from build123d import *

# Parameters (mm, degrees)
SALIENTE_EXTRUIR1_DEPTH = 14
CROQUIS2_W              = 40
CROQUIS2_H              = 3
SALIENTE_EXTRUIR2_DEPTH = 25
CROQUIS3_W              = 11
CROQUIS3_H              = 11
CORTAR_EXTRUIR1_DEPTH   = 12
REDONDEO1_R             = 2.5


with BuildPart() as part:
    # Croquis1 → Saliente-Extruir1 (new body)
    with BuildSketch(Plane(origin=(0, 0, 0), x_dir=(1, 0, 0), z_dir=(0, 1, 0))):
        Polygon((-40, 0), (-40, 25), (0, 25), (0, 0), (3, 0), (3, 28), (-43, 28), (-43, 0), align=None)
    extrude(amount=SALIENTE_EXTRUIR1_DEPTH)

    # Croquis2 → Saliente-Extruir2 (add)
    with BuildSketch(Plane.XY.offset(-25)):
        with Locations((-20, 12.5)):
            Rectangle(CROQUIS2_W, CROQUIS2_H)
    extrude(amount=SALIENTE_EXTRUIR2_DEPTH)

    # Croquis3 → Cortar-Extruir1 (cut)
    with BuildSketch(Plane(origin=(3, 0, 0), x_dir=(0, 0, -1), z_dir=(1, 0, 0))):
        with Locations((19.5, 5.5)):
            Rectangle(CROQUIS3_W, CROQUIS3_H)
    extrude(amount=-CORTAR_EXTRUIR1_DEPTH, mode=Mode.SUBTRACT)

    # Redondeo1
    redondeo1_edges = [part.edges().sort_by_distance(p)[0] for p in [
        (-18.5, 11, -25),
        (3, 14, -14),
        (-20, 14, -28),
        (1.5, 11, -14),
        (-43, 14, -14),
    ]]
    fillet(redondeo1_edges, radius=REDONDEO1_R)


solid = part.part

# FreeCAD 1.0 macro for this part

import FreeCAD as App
import Part
import Sketcher
from FreeCAD import Vector


def edges_at(feature, points):
    """Names of the edges that pass closest to the given points."""
    edges = feature.Shape.Edges
    near = lambda p: min(range(len(edges)), key=lambda i: edges[i].distToShape(Part.Vertex(*p))[0])
    return sorted({f"Edge{near(p) + 1}" for p in points})


def add_polygon(sketch, points):
    """Adds a closed chain of lines whose ends are joined by coincident constraints."""
    first, n = sketch.GeometryCount, len(points)
    for a, b in zip(points, points[1:] + points[:1]):
        sketch.addGeometry(Part.LineSegment(App.Vector(*a, 0), App.Vector(*b, 0)), False)
    for i in range(n):
        sketch.addConstraint(Sketcher.Constraint("Coincident", first + i, 2, first + (i + 1) % n, 1))

doc = App.newDocument("Part")
body = doc.addObject("PartDesign::Body", "Body")

# Sketch on XZ plane
sketch1 = doc.addObject("Sketcher::SketchObject", "Sketch")
body.addObject(sketch1)
sketch1.AttachmentSupport = (doc.XZ_Plane, [""])
sketch1.MapMode = "FlatFace"
add_polygon(sketch1, [(-40, 0), (-40, -25), (0, -25), (0, 0), (3, 0), (3, -28), (-43, -28), (-43, 0)])  # lines 0-7
sketch1.addConstraint([
    Sketcher.Constraint("Vertical", 0),
    Sketcher.Constraint("Horizontal", 1),
    Sketcher.Constraint("Vertical", 2),
    Sketcher.Constraint("Horizontal", 3),
    Sketcher.Constraint("Vertical", 4),
    Sketcher.Constraint("Horizontal", 5),
    Sketcher.Constraint("Vertical", 6),
    Sketcher.Constraint("Horizontal", 7),
    Sketcher.Constraint("Coincident", 2, 2, -1, 1),
    Sketcher.Constraint("PointOnObject", 6, 2, -1),
    Sketcher.Constraint("Equal", 3, 7),
    Sketcher.Constraint("DistanceX", 1, 1, 1, 2, 40.0),
    Sketcher.Constraint("DistanceX", 3, 1, 3, 2, 3.0),
    Sketcher.Constraint("DistanceY", 0, 2, 0, 1, 25.0),
    Sketcher.Constraint("DistanceY", 4, 2, 4, 1, 28.0),
])
pad1 = doc.addObject("PartDesign::Pad", "Pad")
body.addObject(pad1)
pad1.Profile = sketch1
pad1.Length = 14
pad1.Reversed = True

# Sketch on XY plane
sketch2 = doc.addObject("Sketcher::SketchObject", "Sketch001")
body.addObject(sketch2)
sketch2.AttachmentSupport = (doc.XY_Plane, [""])
sketch2.MapMode = "FlatFace"
sketch2.AttachmentOffset = App.Placement(Vector(0, 0, -25), App.Rotation())
add_polygon(sketch2, [(-40, 14), (-40, 11), (0, 11), (0, 14)])  # lines 0-3
sketch2.addConstraint([
    Sketcher.Constraint("Vertical", 0),
    Sketcher.Constraint("Horizontal", 1),
    Sketcher.Constraint("Vertical", 2),
    Sketcher.Constraint("Horizontal", 3),
    Sketcher.Constraint("PointOnObject", 1, 2, -2),
    Sketcher.Constraint("DistanceX", 1, 1, 1, 2, 40.0),
    Sketcher.Constraint("DistanceY", 0, 2, 0, 1, 3.0),
    Sketcher.Constraint("DistanceY", -1, 1, 0, 2, 11.0),
])
pad2 = doc.addObject("PartDesign::Pad", "Pad001")
body.addObject(pad2)
pad2.Profile = sketch2
pad2.Length = 25

# Sketch on YZ plane
sketch3 = doc.addObject("Sketcher::SketchObject", "Sketch002")
body.addObject(sketch3)
sketch3.AttachmentSupport = (doc.YZ_Plane, [""])
sketch3.MapMode = "FlatFace"
sketch3.AttachmentOffset = App.Placement(Vector(0, 0, 3), App.Rotation())
add_polygon(sketch3, [(11, -14), (0, -14), (0, -25), (11, -25)])  # lines 0-3
sketch3.addConstraint([
    Sketcher.Constraint("Horizontal", 0),
    Sketcher.Constraint("Vertical", 1),
    Sketcher.Constraint("Horizontal", 2),
    Sketcher.Constraint("Vertical", 3),
    Sketcher.Constraint("PointOnObject", 0, 2, -2),
    Sketcher.Constraint("Equal", 2, 1),
    Sketcher.Constraint("DistanceX", 0, 2, 0, 1, 11.0),
    Sketcher.Constraint("DistanceY", 0, 2, -1, 1, 14.0),
])
pocket1 = doc.addObject("PartDesign::Pocket", "Pocket")
body.addObject(pocket1)
pocket1.Profile = sketch3
pocket1.Length = 12
doc.recompute()

fillet = doc.addObject("PartDesign::Fillet", "Fillet")
body.addObject(fillet)
fillet.Base = (pocket1, edges_at(pocket1, [
    (-18.5, 11, -25),
    (3, 14, -14),
    (-20, 14, -28),
    (1.5, 11, -14),
    (-43, 14, -14),
]))
fillet.Radius = 2.5

doc.recompute()
